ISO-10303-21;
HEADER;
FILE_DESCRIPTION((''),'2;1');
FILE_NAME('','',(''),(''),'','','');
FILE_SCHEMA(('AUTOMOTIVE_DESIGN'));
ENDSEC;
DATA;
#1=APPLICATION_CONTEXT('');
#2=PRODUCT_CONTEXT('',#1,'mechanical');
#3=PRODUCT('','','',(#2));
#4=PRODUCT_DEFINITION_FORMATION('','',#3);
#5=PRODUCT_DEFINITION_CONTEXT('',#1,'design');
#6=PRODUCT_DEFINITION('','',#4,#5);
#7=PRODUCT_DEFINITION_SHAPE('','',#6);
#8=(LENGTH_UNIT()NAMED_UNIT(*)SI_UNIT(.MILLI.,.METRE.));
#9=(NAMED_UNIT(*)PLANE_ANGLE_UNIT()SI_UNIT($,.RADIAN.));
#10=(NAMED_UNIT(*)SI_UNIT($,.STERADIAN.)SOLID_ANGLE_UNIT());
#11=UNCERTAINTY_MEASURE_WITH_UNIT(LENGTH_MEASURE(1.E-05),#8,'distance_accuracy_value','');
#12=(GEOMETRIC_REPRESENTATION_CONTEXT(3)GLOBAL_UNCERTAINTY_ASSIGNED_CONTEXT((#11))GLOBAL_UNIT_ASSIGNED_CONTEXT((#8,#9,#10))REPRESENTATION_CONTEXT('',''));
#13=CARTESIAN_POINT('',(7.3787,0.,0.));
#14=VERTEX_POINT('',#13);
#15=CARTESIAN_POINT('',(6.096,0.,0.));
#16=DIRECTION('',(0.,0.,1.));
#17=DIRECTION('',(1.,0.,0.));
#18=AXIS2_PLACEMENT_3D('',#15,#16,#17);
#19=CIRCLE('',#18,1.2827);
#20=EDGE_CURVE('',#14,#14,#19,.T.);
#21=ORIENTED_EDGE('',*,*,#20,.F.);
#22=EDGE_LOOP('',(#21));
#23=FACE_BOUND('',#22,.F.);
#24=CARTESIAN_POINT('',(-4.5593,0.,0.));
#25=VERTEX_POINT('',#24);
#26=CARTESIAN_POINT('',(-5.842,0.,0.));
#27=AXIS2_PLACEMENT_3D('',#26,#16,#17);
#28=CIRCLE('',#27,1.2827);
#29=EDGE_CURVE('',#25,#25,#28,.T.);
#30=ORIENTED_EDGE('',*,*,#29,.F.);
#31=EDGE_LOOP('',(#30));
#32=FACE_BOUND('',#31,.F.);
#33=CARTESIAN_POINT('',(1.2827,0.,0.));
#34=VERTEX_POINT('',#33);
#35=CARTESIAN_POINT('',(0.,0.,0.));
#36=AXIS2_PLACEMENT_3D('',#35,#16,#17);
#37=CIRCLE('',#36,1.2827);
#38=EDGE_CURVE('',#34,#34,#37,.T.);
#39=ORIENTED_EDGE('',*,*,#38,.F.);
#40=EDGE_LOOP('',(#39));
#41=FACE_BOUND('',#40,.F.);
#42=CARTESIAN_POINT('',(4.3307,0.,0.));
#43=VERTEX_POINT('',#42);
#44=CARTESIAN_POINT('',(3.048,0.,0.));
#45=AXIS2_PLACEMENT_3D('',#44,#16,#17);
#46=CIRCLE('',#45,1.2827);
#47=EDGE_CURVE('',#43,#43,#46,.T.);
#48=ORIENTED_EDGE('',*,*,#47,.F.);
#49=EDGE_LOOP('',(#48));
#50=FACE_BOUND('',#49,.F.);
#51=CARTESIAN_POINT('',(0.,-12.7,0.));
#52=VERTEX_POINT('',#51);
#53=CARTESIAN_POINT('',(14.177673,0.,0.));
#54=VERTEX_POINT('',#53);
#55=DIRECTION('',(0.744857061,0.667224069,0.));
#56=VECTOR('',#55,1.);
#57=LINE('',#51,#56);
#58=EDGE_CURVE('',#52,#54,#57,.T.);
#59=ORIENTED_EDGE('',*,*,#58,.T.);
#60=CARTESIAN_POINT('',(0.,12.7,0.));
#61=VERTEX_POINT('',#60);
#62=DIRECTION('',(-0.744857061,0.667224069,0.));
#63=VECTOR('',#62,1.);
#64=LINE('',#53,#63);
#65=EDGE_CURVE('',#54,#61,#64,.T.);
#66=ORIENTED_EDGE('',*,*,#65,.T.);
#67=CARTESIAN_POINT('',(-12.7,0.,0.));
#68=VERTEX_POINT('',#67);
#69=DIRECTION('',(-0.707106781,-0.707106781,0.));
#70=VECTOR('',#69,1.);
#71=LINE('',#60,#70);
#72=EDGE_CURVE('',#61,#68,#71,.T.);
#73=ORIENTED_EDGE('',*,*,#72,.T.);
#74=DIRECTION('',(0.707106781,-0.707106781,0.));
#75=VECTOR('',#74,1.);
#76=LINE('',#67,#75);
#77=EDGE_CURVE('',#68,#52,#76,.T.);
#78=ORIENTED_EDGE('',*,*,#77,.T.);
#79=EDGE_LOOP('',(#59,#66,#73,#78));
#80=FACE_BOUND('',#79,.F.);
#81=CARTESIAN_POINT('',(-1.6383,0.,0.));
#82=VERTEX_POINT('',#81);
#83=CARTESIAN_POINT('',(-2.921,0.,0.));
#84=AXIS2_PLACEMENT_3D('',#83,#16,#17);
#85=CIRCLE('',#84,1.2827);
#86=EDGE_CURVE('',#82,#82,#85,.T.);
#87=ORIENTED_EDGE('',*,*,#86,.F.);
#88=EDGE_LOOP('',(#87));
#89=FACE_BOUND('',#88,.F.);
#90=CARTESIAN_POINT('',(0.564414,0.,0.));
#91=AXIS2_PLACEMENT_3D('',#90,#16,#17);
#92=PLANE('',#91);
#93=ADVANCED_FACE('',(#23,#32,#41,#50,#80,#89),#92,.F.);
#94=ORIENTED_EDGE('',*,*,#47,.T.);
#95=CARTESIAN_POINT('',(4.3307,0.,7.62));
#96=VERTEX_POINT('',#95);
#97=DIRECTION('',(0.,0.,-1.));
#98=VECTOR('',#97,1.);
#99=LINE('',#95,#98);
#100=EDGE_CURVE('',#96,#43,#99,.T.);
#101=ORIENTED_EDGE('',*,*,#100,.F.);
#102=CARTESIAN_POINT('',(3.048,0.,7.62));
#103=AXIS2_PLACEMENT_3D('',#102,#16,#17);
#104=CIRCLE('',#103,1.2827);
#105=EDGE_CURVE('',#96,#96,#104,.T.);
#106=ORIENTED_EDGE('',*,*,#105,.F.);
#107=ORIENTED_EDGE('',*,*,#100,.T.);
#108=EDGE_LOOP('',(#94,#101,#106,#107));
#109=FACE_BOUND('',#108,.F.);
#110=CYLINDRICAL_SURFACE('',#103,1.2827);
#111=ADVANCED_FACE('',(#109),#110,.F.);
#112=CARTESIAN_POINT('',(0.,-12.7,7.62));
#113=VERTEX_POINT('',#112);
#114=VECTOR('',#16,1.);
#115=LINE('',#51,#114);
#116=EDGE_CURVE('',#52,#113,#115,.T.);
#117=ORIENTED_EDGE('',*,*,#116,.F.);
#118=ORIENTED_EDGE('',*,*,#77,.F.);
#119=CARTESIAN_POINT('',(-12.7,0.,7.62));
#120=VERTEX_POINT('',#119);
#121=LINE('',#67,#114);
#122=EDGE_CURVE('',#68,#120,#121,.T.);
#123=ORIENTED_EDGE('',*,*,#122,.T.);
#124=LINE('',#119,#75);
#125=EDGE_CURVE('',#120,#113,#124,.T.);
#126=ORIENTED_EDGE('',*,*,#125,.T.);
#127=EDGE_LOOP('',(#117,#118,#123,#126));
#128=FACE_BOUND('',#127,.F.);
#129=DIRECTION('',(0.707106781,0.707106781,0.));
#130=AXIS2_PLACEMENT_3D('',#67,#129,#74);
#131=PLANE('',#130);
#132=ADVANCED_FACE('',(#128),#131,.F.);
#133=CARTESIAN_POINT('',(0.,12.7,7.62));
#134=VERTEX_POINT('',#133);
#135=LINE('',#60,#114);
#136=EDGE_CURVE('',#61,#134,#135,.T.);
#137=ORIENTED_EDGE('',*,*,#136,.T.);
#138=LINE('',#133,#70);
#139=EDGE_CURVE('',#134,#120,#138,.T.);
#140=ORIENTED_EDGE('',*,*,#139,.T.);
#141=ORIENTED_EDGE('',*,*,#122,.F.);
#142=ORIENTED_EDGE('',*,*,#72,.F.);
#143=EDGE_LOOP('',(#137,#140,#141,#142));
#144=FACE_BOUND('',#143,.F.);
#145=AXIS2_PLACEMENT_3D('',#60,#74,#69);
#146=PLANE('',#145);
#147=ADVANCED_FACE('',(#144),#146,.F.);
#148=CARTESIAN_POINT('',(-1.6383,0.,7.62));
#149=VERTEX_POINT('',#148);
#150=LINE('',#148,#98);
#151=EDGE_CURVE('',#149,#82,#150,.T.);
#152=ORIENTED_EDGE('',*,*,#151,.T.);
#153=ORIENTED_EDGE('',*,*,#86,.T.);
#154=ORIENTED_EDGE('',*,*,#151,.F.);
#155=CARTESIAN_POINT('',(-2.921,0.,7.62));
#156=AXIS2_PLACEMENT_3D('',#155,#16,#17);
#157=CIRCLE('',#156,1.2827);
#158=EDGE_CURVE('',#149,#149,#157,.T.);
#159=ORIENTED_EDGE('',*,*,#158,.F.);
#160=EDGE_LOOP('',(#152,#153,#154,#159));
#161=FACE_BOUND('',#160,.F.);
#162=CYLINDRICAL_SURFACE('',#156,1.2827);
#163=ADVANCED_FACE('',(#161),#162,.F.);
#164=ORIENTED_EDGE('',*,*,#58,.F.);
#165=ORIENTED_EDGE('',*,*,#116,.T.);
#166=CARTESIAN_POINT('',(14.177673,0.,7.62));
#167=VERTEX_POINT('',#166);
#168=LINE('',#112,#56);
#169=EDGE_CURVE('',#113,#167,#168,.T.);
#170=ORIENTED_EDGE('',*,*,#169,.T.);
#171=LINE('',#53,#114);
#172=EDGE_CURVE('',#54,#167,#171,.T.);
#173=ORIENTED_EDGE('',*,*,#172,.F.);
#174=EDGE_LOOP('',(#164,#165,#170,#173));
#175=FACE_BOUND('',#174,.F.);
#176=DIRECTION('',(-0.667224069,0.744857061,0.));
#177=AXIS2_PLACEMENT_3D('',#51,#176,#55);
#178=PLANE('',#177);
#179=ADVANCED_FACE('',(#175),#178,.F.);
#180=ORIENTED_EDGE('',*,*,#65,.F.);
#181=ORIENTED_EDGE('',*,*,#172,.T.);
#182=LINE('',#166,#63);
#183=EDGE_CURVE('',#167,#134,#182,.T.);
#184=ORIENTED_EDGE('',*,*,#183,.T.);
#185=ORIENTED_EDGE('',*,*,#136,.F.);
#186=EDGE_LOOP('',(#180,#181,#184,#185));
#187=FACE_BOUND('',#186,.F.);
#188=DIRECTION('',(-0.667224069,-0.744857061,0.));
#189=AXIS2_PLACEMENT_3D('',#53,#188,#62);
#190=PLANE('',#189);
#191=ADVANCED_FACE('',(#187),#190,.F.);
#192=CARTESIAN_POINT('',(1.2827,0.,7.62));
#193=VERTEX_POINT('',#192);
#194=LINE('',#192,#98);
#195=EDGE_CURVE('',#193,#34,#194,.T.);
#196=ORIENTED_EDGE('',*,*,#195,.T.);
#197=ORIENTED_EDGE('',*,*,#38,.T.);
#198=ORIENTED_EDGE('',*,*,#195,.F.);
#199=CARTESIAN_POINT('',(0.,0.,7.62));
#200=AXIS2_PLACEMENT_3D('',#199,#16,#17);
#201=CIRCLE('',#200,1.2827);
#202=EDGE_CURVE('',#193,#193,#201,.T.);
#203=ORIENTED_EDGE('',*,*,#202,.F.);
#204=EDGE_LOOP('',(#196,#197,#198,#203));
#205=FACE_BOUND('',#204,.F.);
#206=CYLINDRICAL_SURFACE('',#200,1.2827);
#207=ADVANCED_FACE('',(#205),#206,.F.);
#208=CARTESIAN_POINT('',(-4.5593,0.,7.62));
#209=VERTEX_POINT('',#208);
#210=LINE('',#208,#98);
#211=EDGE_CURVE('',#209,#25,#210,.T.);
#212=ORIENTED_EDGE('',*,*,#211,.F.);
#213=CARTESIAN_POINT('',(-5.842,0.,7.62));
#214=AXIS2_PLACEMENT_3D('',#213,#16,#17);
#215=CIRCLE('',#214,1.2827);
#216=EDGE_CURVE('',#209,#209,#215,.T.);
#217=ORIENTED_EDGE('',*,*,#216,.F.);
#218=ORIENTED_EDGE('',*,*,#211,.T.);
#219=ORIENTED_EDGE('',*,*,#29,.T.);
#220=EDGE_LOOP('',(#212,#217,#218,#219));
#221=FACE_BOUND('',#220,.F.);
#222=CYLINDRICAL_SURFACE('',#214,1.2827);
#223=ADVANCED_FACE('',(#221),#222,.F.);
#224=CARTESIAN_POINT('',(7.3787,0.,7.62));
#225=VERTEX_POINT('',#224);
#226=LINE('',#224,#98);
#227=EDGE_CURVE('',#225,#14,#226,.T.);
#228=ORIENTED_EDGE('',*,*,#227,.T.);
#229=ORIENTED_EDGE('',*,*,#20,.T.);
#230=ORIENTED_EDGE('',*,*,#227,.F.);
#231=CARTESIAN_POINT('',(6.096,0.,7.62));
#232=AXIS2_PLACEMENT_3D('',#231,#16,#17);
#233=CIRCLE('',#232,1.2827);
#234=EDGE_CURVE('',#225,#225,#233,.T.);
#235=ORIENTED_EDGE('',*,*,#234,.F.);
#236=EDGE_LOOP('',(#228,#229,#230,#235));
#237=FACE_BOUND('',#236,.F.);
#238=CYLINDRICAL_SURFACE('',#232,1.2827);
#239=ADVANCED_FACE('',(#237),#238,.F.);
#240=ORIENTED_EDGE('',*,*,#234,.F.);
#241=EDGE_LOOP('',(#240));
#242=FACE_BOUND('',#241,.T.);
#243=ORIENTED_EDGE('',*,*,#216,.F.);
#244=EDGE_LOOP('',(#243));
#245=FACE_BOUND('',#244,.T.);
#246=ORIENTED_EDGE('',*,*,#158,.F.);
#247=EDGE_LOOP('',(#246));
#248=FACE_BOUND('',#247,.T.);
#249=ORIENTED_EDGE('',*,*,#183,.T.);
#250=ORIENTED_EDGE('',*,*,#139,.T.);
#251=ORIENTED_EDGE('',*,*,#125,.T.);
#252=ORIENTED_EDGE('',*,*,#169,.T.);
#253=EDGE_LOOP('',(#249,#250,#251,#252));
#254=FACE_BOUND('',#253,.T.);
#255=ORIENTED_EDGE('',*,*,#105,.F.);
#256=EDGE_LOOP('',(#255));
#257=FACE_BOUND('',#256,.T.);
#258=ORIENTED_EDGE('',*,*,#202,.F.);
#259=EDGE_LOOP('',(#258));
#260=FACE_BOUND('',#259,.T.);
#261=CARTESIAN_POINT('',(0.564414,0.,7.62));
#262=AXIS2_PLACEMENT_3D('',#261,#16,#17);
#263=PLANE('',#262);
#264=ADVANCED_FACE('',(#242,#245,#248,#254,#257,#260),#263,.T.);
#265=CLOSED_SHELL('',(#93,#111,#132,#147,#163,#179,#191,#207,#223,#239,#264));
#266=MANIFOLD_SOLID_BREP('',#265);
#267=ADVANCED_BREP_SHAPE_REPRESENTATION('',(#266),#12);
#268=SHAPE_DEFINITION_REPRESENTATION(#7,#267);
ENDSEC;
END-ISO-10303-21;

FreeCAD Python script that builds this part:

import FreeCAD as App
import Part
import Sketcher
from FreeCAD import Vector
Q = App.Units.Quantity

doc = App.newDocument("Part")
body = doc.addObject("PartDesign::Body", "Body")

# Sketch on XY plane
sketch1 = body.newObject("Sketcher::SketchObject", "Sketch")
sketch1.AttachmentSupport = (doc.getObject("XY_Plane"), [""])
sketch1.MapMode = "FlatFace"
sketch1.addGeometry([
    Part.LineSegment(Vector(14, 0, 0), Vector(0, 13, 0)),
    Part.LineSegment(Vector(0, 13, 0), Vector(-13, 0, 0)),
    Part.LineSegment(Vector(-13, 0, 0), Vector(0, -13, 0)),
    Part.LineSegment(Vector(0, -13, 0), Vector(14, 0, 0)),
], False)
sketch1.addConstraint([
    Sketcher.Constraint("Coincident", 0, 2, 1, 1),
    Sketcher.Constraint("Coincident", 1, 2, 2, 1),
    Sketcher.Constraint("Coincident", 2, 2, 3, 1),
    Sketcher.Constraint("Coincident", 3, 2, 0, 1),
    Sketcher.Constraint("Symmetric", 0, 2, 2, 2, -1, 1),
    Sketcher.Constraint("PointOnObject", 0, 2, -2),
    Sketcher.Constraint("PointOnObject", 1, 2, -1),
    Sketcher.Constraint("PointOnObject", 3, 2, -1),
    Sketcher.Constraint("Perpendicular", 1, 2),
    Sketcher.Constraint("DistanceY", 2, 2, 0, 2, Q("1 in")),
    Sketcher.Constraint("Distance", 0, 19.034086),
])
pad1 = body.newObject("PartDesign::Pad", "Pad")
pad1.Profile = sketch1
pad1.Length = Q("0.3 in")

# Sketch on XY plane
sketch2 = body.newObject("Sketcher::SketchObject", "Sketch001")
sketch2.AttachmentSupport = (doc.getObject("XY_Plane"), [""])
sketch2.MapMode = "FlatFace"
sketch2.AttachmentOffset = App.Placement(Vector(0, 0, 0.3 * 25.4), App.Rotation())
sketch2.addGeometry([
    Part.Circle(Vector(-5.8, 0, 0), Vector(0, 0, 1), 1.3),  # 0
    Part.Circle(Vector(-2.9, 0, 0), Vector(0, 0, 1), 1.3),  # 1
    Part.Circle(Vector(0, 0, 0), Vector(0, 0, 1), 1.3),  # 2
    Part.Circle(Vector(3, 0, 0), Vector(0, 0, 1), 1.3),  # 3
    Part.Circle(Vector(6.1, 0, 0), Vector(0, 0, 1), 1.3),  # 4
], False)
sketch2.addConstraint([
    Sketcher.Constraint("Coincident", 2, 3, -1, 1),
    Sketcher.Constraint("Equal", 0, 1),
    Sketcher.Constraint("Equal", 1, 2),
    Sketcher.Constraint("Equal", 2, 3),
    Sketcher.Constraint("Equal", 3, 4),
    Sketcher.Constraint("PointOnObject", 0, 3, -1),
    Sketcher.Constraint("PointOnObject", 1, 3, -1),
    Sketcher.Constraint("PointOnObject", 3, 3, -1),
    Sketcher.Constraint("PointOnObject", 4, 3, -1),
    Sketcher.Constraint("Diameter", 0, Q("0.101 in")),
    Sketcher.Constraint("DistanceX", 0, 3, -1, 1, Q("0.23 in")),
    Sketcher.Constraint("DistanceX", -1, 1, 3, 3, Q("0.12 in")),
    Sketcher.Constraint("DistanceX", -1, 1, 4, 3, Q("0.24 in")),
    Sketcher.Constraint("DistanceX", 1, 3, -1, 1, Q("0.115 in")),
])
pocket1 = body.newObject("PartDesign::Pocket", "Pocket")
pocket1.Profile = sketch2
pocket1.Type = "ThroughAll"

doc.recompute()
